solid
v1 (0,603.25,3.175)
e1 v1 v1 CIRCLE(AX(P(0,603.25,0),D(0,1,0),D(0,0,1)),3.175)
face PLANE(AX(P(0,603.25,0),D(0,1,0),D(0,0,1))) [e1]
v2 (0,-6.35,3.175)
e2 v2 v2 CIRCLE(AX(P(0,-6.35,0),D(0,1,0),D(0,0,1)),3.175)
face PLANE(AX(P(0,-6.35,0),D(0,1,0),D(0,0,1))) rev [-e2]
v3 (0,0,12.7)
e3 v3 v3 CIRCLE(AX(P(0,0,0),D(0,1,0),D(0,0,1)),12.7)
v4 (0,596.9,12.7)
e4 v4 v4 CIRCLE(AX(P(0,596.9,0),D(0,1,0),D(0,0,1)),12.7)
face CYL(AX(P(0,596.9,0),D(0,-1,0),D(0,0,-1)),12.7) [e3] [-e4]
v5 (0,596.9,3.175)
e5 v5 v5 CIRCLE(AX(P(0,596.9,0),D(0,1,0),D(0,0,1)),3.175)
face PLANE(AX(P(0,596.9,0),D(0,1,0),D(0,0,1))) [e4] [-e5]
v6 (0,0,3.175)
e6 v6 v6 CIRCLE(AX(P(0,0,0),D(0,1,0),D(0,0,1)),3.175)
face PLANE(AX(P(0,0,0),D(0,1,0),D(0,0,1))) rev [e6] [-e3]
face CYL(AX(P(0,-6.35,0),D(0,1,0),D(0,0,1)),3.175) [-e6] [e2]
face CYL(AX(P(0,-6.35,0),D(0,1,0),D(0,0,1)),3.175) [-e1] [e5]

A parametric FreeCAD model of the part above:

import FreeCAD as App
import Part
import Sketcher

V = App.Vector
Q = App.Units.Quantity

doc = App.newDocument("Part")
params = doc.addObject("Spreadsheet::Sheet", "Params")
for row, (alias, value) in enumerate([
    ("sketch1_diameter", "1 in"),
    ("pad1_length", "23.5 in"),
    ("sketch2_diameter", "0.25 in"),
    ("pad2_length", "0.25 in"),
    ("pad2_length2", "23.75 in"),
], start=1):
    params.set(f"A{row}", alias)
    params.set(f"B{row}", "=" + value)
    params.setAlias(f"B{row}", alias)

body = doc.addObject("PartDesign::Body", "Body")

# Sketch on XZ plane
sketch1 = doc.addObject("Sketcher::SketchObject", "Sketch")
body.addObject(sketch1)
sketch1.AttachmentSupport = (doc.XZ_Plane, [""])
sketch1.MapMode = "FlatFace"
sketch1.addGeometry(Part.Circle(V(0, 0, 0), V(0, 0, 1), 12.7), False)
sketch1.addConstraint([
    Sketcher.Constraint("Coincident", 0, 3, -1, 1),
    Sketcher.Constraint("Diameter", 0, Q("1 in")),
])
sketch1.setExpression("Constraints[1]", "Params.sketch1_diameter")
pad1 = doc.addObject("PartDesign::Pad", "Pad")
body.addObject(pad1)
pad1.Profile = sketch1
pad1.setExpression("Length", "Params.pad1_length")
pad1.Reversed = True

# Sketch on XZ plane
sketch2 = doc.addObject("Sketcher::SketchObject", "Sketch001")
body.addObject(sketch2)
sketch2.AttachmentSupport = (doc.XZ_Plane, [""])
sketch2.MapMode = "FlatFace"
sketch2.AttachmentOffset = App.Placement(V(0, 0, -23.5 * 25.4), App.Rotation())
sketch2.addGeometry(Part.Circle(V(0, 0, 0), V(0, 0, 1), 3.175), False)
sketch2.addConstraint([
    Sketcher.Constraint("Coincident", 0, 3, -1, 1),
    Sketcher.Constraint("Diameter", 0, Q("0.25 in")),
])
sketch2.setExpression("Constraints[1]", "Params.sketch2_diameter")
pad2 = doc.addObject("PartDesign::Pad", "Pad001")
body.addObject(pad2)
pad2.Profile = sketch2
pad2.Type = "TwoLengths"
pad2.setExpression("Length", "Params.pad2_length")
pad2.setExpression("Length2", "Params.pad2_length2")
pad2.Reversed = True

doc.recompute()
